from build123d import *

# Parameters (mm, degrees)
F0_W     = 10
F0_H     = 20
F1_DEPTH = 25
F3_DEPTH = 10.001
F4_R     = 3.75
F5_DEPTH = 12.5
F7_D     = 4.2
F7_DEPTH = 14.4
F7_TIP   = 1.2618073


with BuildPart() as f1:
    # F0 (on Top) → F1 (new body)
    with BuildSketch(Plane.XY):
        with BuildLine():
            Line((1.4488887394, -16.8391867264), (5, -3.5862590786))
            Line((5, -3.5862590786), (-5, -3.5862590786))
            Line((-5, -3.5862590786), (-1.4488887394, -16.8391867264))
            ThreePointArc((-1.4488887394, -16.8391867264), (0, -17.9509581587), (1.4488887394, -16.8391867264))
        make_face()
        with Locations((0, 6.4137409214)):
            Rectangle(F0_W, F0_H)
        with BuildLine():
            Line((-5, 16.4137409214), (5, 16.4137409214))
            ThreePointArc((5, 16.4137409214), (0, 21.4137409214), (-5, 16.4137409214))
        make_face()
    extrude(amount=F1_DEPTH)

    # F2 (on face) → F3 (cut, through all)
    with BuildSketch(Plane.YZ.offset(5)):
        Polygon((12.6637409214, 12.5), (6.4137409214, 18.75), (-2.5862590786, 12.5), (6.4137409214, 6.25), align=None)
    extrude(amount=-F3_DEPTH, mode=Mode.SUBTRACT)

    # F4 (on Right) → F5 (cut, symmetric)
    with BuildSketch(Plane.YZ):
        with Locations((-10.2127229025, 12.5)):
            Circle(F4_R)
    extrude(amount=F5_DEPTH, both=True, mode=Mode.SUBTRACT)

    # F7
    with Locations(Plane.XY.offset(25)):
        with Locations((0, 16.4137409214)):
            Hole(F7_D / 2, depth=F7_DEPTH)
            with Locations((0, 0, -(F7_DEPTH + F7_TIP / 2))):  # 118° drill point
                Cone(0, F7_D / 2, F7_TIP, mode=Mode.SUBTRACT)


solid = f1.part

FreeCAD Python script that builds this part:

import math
import FreeCAD as App
import Part
import Sketcher

V = App.Vector
Q = App.Units.Quantity

doc = App.newDocument("Part")
body = doc.addObject("PartDesign::Body", "Body")

# Sketch on XY plane
sketch1 = body.newObject("Sketcher::SketchObject", "Sketch")
sketch1.AttachmentSupport = (doc.getObject("XY_Plane"), [""])
sketch1.MapMode = "FlatFace"
sketch1.addGeometry(Part.LineSegment(V(1.4, -16.8, 0), V(5, -3.6, 0)), False)
sketch1.addGeometry(Part.LineSegment(V(5, -3.6, 0), V(5, 16.4, 0)), False)
sketch1.addGeometry(Part.ArcOfCircle(Part.Circle(V(0, 16.4, 0), V(0, 0, 1), 5), math.radians(0), math.radians(180)), False)
sketch1.addGeometry(Part.LineSegment(V(-5, 16.4, 0), V(-5, -3.6, 0)), False)
sketch1.addGeometry(Part.LineSegment(V(-5, -3.6, 0), V(-1.4, -16.8, 0)), False)
sketch1.addGeometry(Part.ArcOfCircle(Part.Circle(V(0, -16.5, 0), V(0, 0, 1), 1.5), math.radians(-165), math.radians(-15)), False)
sketch1.addConstraint(Sketcher.Constraint("Coincident", 0, 2, 1, 1))
sketch1.addConstraint(Sketcher.Constraint("Tangent", 1, 2, 2, 1))
sketch1.addConstraint(Sketcher.Constraint("Tangent", 2, 2, 3, 1))
sketch1.addConstraint(Sketcher.Constraint("Coincident", 3, 2, 4, 1))
sketch1.addConstraint(Sketcher.Constraint("Tangent", 4, 2, 5, 1))
sketch1.addConstraint(Sketcher.Constraint("Tangent", 5, 2, 0, 1))
sketch1.addConstraint(Sketcher.Constraint("Vertical", 1))
sketch1.addConstraint(Sketcher.Constraint("Vertical", 3))
sketch1.addConstraint(Sketcher.Constraint("Symmetric", 0, 2, 3, 2, -2))
sketch1.addConstraint(Sketcher.Constraint("PointOnObject", 5, 3, -2))
sketch1.addConstraint(Sketcher.Constraint("Radius", 2, Q("5 mm")))
sketch1.addConstraint(Sketcher.Constraint("Radius", 5, Q("1.5 mm")))
sketch1.addConstraint(Sketcher.Constraint("DistanceY", 1, 1, 1, 2, Q("20 mm")))
sketch1.addConstraint(Sketcher.Constraint("Angle", 0, Q("75 deg")))
sketch1.addConstraint(Sketcher.Constraint("DistanceY", -1, 1, 2, 3, Q("16.413741 mm")))
pad1 = body.newObject("PartDesign::Pad", "Pad")
pad1.Profile = sketch1
pad1.Length = 25

# Sketch on YZ plane
sketch2 = body.newObject("Sketcher::SketchObject", "Sketch001")
sketch2.AttachmentSupport = (doc.getObject("YZ_Plane"), [""])
sketch2.MapMode = "FlatFace"
sketch2.AttachmentOffset = App.Placement(V(0, 0, 5), App.Rotation())
sketch2.addGeometry(Part.LineSegment(V(13, 12, 0), V(6, 19, 0)), False)
sketch2.addGeometry(Part.LineSegment(V(6, 19, 0), V(-3, 12, 0)), False)
sketch2.addGeometry(Part.LineSegment(V(-3, 12, 0), V(6, 6, 0)), False)
sketch2.addGeometry(Part.LineSegment(V(6, 6, 0), V(13, 12, 0)), False)
sketch2.addConstraint(Sketcher.Constraint("Coincident", 0, 2, 1, 1))
sketch2.addConstraint(Sketcher.Constraint("Coincident", 1, 2, 2, 1))
sketch2.addConstraint(Sketcher.Constraint("Coincident", 2, 2, 3, 1))
sketch2.addConstraint(Sketcher.Constraint("Coincident", 3, 2, 0, 1))
sketch2.addConstraint(Sketcher.Constraint("Perpendicular", 0, 3))
sketch2.addConstraint(Sketcher.Constraint("Horizontal", 1, 2, 3, 2))
sketch2.addConstraint(Sketcher.Constraint("Vertical", 0, 2, 2, 2))
sketch2.addConstraint(Sketcher.Constraint("Equal", 1, 2))
sketch2.addConstraint(Sketcher.Constraint("DistanceX", 1, 2, 0, 2, Q("9 mm")))
sketch2.addConstraint(Sketcher.Constraint("DistanceY", -1, 1, 1, 2, Q("12.5 mm")))
sketch2.addConstraint(Sketcher.Constraint("DistanceY", 2, 2, 0, 2, Q("12.5 mm")))
sketch2.addConstraint(Sketcher.Constraint("DistanceX", -1, 1, 0, 2, Q("6.413741 mm")))
pocket1 = body.newObject("PartDesign::Pocket", "Pocket")
pocket1.Profile = sketch2
pocket1.Type = "ThroughAll"

# Sketch on YZ plane
sketch3 = body.newObject("Sketcher::SketchObject", "Sketch002")
sketch3.AttachmentSupport = (doc.getObject("YZ_Plane"), [""])
sketch3.MapMode = "FlatFace"
sketch3.addGeometry(Part.Circle(V(-10.2, 12.5, 0), V(0, 0, 1), 3.8), False)
sketch3.addConstraint(Sketcher.Constraint("Diameter", 0, Q("7.5 mm")))
sketch3.addConstraint(Sketcher.Constraint("DistanceY", -1, 1, 0, 3, Q("12.5 mm")))
sketch3.addConstraint(Sketcher.Constraint("DistanceX", 0, 3, -1, 1, Q("10.212723 mm")))
pocket2 = body.newObject("PartDesign::Pocket", "Pocket001")
pocket2.Profile = sketch3
pocket2.Length = 25
pocket2.Midplane = True

# Sketch on XY plane
sketch4 = body.newObject("Sketcher::SketchObject", "Sketch003")
sketch4.AttachmentSupport = (doc.getObject("XY_Plane"), [""])
sketch4.MapMode = "FlatFace"
sketch4.AttachmentOffset = App.Placement(V(0, 0, 25), App.Rotation())
sketch4.addGeometry(Part.Circle(V(0, 16.4, 0), V(0, 0, 1), 2.1), False)
sketch4.addConstraint(Sketcher.Constraint("PointOnObject", 0, 3, -2))
sketch4.addConstraint(Sketcher.Constraint("Diameter", 0, Q("4.2 mm")))
sketch4.addConstraint(Sketcher.Constraint("DistanceY", -1, 1, 0, 3, Q("16.413741 mm")))
doc.recompute()
hole = body.newObject("PartDesign::Hole", "Hole")
hole.Profile = sketch4
hole.ThreadType = "None"
hole.Diameter = 4.2
hole.DepthType = "Dimension"
hole.Depth = 14.4
hole.DrillPoint = "Angled"
hole.DrillPointAngle = 118

doc.recompute()
